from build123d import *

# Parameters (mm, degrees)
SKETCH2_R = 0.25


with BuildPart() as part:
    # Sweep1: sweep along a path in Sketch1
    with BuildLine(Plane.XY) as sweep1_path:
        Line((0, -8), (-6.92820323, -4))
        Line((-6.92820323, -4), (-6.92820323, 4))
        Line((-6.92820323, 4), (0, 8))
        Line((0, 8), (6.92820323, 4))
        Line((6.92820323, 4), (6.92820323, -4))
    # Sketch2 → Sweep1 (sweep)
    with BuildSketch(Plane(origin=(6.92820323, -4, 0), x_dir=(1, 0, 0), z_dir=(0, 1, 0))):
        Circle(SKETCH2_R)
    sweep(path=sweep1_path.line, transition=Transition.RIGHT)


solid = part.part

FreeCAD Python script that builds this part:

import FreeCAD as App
import Part
import Sketcher
Q = App.Units.Quantity

doc = App.newDocument("Part")
params = doc.addObject("Spreadsheet::Sheet", "Params")
for row, (alias, value) in enumerate([
    ("sketch1_diameter", "0.5 mm"),
    ("sketch2_height", "8 mm"),
    ("sketch2_length", "8 mm"),
], start=1):
    params.set(f"A{row}", alias)
    params.set(f"B{row}", "=" + value)
    params.setAlias(f"B{row}", alias)

body = doc.addObject("PartDesign::Body", "Body")

# Sketch on XZ plane
sketch1 = body.newObject("Sketcher::SketchObject", "Sketch")
sketch1.AttachmentSupport = (doc.getObject("XZ_Plane"), [""])
sketch1.MapMode = "FlatFace"
sketch1.AttachmentOffset = App.Placement(App.Vector(0, 0, 4), App.Rotation())
sketch1.addGeometry(Part.Circle(App.Vector(6.928203, 0, 0), App.Vector(0, 0, 1), 0.25), False)
sketch1.addConstraint([
    Sketcher.Constraint("PointOnObject", 0, 3, -1),
    Sketcher.Constraint("Diameter", 0, 0.5),
    Sketcher.Constraint("DistanceX", -1, 1, 0, 3, 6.928203),
])
sketch1.setExpression("Constraints[1]", "Params.sketch1_diameter")

# Sketch on XY plane
sketch2 = body.newObject("Sketcher::SketchObject", "Sketch001")
sketch2.AttachmentSupport = (doc.getObject("XY_Plane"), [""])
sketch2.MapMode = "FlatFace"
sketch2.addGeometry([
    Part.LineSegment(App.Vector(0, -8, 0), App.Vector(-6.928203, -4, 0)),  # 0
    Part.LineSegment(App.Vector(-6.928203, -4, 0), App.Vector(-6.928203, 4, 0)),  # 1
    Part.LineSegment(App.Vector(-6.928203, 4, 0), App.Vector(0, 8, 0)),  # 2
    Part.LineSegment(App.Vector(0, 8, 0), App.Vector(6.928203, 4, 0)),  # 3
    Part.LineSegment(App.Vector(6.928203, 4, 0), App.Vector(6.928203, -4, 0)),  # 4
], False)
sketch2.addConstraint([
    Sketcher.Constraint("Coincident", 0, 2, 1, 1),
    Sketcher.Constraint("Coincident", 1, 2, 2, 1),
    Sketcher.Constraint("Coincident", 2, 2, 3, 1),
    Sketcher.Constraint("Coincident", 3, 2, 4, 1),
    Sketcher.Constraint("Vertical", 1),
    Sketcher.Constraint("Vertical", 4),
    Sketcher.Constraint("Symmetric", 0, 1, 2, 2, -1, 1),
    Sketcher.Constraint("Symmetric", 0, 2, 3, 2, -1, 1),
    Sketcher.Constraint("PointOnObject", 0, 1, -2),
    Sketcher.Constraint("Horizontal", 1, 2, 3, 2),
    Sketcher.Constraint("Horizontal", 0, 2, 4, 2),
    Sketcher.Constraint("DistanceY", 1, 1, 1, 2, 8.0),
    Sketcher.Constraint("Angle", 0, Q("150 deg")),
    Sketcher.Constraint("Distance", 0, 8.0),
])
sketch2.setExpression("Constraints[11]", "Params.sketch2_height")
sketch2.setExpression("Constraints[13]", "Params.sketch2_length")
doc.recompute()

additivepipe = body.newObject("PartDesign::AdditivePipe", "AdditivePipe")
additivepipe.Profile = sketch1
additivepipe.Spine = (sketch2, ["Edge1", "Edge2", "Edge3", "Edge4", "Edge5"])
additivepipe.Transition = "Right corner"

doc.recompute()
